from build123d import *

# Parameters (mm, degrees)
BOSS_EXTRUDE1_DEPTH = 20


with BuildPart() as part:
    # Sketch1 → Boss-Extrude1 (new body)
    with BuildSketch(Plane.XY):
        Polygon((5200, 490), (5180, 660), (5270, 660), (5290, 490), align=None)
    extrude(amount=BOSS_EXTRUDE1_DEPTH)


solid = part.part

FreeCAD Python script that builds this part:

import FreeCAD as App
import Part
import Sketcher
Q = App.Units.Quantity


def add_polygon(sketch, points):
    """Adds a closed chain of lines whose ends are joined by coincident constraints."""
    first, n = sketch.GeometryCount, len(points)
    for a, b in zip(points, points[1:] + points[:1]):
        sketch.addGeometry(Part.LineSegment(App.Vector(*a, 0), App.Vector(*b, 0)), False)
    for i in range(n):
        sketch.addConstraint(Sketcher.Constraint("Coincident", first + i, 2, first + (i + 1) % n, 1))

doc = App.newDocument("Part")
body = doc.addObject("PartDesign::Body", "Body")

# Sketch on XY plane
sketch1 = body.newObject("Sketcher::SketchObject", "Sketch")
sketch1.AttachmentSupport = (doc.getObject("XY_Plane"), [""])
sketch1.MapMode = "FlatFace"
add_polygon(sketch1, [(5180, 660), (5200, 490), (5290, 490), (5270, 660)])  # lines 0-3
sketch1.addConstraint([
    Sketcher.Constraint("Horizontal", 1),
    Sketcher.Constraint("Horizontal", 3),
    Sketcher.Constraint("Parallel", 0, 2),
    Sketcher.Constraint("DistanceX", 1, 1, 1, 2, Q("90 mm")),
    Sketcher.Constraint("DistanceX", -1, 1, 0, 2, Q("5200 mm")),
    Sketcher.Constraint("DistanceY", -1, 1, 0, 2, Q("490 mm")),
    Sketcher.Constraint("DistanceX", -1, 1, 2, 2, Q("5270 mm")),
    Sketcher.Constraint("DistanceY", -1, 1, 2, 2, Q("660 mm")),
])
pad1 = body.newObject("PartDesign::Pad", "Pad")
pad1.Profile = sketch1
pad1.Length = 20

doc.recompute()
